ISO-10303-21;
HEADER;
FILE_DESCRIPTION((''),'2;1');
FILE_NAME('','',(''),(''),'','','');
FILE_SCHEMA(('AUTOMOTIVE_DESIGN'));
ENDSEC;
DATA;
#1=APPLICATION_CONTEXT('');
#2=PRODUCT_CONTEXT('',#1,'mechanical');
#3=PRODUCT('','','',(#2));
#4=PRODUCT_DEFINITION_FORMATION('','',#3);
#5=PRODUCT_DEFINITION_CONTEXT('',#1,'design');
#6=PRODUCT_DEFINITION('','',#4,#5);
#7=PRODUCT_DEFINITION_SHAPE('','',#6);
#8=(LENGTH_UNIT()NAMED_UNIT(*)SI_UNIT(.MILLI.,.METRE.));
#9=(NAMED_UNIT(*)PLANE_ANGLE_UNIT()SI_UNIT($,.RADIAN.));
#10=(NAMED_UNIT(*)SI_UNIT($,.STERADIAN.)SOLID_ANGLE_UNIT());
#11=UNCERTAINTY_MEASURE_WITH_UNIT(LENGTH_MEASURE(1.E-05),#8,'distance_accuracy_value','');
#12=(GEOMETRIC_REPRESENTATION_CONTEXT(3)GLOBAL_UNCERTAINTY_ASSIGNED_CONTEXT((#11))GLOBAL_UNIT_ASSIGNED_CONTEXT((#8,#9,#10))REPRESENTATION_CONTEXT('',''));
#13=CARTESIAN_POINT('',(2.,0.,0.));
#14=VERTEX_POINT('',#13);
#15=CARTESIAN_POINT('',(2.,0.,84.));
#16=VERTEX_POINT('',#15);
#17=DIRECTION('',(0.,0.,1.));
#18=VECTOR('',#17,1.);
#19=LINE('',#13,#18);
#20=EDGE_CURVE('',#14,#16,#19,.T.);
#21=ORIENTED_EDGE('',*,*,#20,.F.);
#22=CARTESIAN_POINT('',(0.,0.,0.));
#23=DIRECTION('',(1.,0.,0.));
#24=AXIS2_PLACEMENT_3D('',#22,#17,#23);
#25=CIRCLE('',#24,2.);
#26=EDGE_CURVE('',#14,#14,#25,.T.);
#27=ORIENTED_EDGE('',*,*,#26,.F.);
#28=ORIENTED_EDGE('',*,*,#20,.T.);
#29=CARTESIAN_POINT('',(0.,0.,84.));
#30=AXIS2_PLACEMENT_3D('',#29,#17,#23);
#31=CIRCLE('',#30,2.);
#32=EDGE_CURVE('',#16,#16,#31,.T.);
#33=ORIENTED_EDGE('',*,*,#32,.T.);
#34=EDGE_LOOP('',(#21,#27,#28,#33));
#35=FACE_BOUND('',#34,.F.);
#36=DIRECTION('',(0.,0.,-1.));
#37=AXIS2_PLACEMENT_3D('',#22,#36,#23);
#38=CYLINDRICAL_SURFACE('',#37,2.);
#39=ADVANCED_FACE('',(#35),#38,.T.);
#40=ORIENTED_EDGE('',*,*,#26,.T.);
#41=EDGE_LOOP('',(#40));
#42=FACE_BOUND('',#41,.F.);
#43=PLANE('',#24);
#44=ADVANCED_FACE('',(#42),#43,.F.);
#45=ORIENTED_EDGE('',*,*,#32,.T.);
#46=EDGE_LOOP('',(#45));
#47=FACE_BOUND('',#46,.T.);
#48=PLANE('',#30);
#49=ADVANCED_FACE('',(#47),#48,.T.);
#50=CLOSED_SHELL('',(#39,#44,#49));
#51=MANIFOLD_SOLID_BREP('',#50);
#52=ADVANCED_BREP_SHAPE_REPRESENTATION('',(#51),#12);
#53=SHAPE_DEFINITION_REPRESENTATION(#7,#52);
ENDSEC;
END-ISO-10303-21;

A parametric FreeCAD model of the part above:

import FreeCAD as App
import Part
import Sketcher

doc = App.newDocument("Part")
body = doc.addObject("PartDesign::Body", "Body")

sketch1 = body.newObject("Sketcher::SketchObject", "Sketch")
sketch1.AttachmentSupport = (doc.getObject("XY_Plane"), [""])
sketch1.MapMode = "FlatFace"
sketch1.addGeometry(Part.Circle(App.Vector(0, 0, 0), App.Vector(0, 0, 1), 2), False)
sketch1.addConstraint([
    Sketcher.Constraint("Coincident", 0, 3, -1, 1),
    Sketcher.Constraint("Diameter", 0, 4.0),
])
pad1 = body.newObject("PartDesign::Pad", "Pad")
pad1.Profile = sketch1
pad1.Length = 84

doc.recompute()
